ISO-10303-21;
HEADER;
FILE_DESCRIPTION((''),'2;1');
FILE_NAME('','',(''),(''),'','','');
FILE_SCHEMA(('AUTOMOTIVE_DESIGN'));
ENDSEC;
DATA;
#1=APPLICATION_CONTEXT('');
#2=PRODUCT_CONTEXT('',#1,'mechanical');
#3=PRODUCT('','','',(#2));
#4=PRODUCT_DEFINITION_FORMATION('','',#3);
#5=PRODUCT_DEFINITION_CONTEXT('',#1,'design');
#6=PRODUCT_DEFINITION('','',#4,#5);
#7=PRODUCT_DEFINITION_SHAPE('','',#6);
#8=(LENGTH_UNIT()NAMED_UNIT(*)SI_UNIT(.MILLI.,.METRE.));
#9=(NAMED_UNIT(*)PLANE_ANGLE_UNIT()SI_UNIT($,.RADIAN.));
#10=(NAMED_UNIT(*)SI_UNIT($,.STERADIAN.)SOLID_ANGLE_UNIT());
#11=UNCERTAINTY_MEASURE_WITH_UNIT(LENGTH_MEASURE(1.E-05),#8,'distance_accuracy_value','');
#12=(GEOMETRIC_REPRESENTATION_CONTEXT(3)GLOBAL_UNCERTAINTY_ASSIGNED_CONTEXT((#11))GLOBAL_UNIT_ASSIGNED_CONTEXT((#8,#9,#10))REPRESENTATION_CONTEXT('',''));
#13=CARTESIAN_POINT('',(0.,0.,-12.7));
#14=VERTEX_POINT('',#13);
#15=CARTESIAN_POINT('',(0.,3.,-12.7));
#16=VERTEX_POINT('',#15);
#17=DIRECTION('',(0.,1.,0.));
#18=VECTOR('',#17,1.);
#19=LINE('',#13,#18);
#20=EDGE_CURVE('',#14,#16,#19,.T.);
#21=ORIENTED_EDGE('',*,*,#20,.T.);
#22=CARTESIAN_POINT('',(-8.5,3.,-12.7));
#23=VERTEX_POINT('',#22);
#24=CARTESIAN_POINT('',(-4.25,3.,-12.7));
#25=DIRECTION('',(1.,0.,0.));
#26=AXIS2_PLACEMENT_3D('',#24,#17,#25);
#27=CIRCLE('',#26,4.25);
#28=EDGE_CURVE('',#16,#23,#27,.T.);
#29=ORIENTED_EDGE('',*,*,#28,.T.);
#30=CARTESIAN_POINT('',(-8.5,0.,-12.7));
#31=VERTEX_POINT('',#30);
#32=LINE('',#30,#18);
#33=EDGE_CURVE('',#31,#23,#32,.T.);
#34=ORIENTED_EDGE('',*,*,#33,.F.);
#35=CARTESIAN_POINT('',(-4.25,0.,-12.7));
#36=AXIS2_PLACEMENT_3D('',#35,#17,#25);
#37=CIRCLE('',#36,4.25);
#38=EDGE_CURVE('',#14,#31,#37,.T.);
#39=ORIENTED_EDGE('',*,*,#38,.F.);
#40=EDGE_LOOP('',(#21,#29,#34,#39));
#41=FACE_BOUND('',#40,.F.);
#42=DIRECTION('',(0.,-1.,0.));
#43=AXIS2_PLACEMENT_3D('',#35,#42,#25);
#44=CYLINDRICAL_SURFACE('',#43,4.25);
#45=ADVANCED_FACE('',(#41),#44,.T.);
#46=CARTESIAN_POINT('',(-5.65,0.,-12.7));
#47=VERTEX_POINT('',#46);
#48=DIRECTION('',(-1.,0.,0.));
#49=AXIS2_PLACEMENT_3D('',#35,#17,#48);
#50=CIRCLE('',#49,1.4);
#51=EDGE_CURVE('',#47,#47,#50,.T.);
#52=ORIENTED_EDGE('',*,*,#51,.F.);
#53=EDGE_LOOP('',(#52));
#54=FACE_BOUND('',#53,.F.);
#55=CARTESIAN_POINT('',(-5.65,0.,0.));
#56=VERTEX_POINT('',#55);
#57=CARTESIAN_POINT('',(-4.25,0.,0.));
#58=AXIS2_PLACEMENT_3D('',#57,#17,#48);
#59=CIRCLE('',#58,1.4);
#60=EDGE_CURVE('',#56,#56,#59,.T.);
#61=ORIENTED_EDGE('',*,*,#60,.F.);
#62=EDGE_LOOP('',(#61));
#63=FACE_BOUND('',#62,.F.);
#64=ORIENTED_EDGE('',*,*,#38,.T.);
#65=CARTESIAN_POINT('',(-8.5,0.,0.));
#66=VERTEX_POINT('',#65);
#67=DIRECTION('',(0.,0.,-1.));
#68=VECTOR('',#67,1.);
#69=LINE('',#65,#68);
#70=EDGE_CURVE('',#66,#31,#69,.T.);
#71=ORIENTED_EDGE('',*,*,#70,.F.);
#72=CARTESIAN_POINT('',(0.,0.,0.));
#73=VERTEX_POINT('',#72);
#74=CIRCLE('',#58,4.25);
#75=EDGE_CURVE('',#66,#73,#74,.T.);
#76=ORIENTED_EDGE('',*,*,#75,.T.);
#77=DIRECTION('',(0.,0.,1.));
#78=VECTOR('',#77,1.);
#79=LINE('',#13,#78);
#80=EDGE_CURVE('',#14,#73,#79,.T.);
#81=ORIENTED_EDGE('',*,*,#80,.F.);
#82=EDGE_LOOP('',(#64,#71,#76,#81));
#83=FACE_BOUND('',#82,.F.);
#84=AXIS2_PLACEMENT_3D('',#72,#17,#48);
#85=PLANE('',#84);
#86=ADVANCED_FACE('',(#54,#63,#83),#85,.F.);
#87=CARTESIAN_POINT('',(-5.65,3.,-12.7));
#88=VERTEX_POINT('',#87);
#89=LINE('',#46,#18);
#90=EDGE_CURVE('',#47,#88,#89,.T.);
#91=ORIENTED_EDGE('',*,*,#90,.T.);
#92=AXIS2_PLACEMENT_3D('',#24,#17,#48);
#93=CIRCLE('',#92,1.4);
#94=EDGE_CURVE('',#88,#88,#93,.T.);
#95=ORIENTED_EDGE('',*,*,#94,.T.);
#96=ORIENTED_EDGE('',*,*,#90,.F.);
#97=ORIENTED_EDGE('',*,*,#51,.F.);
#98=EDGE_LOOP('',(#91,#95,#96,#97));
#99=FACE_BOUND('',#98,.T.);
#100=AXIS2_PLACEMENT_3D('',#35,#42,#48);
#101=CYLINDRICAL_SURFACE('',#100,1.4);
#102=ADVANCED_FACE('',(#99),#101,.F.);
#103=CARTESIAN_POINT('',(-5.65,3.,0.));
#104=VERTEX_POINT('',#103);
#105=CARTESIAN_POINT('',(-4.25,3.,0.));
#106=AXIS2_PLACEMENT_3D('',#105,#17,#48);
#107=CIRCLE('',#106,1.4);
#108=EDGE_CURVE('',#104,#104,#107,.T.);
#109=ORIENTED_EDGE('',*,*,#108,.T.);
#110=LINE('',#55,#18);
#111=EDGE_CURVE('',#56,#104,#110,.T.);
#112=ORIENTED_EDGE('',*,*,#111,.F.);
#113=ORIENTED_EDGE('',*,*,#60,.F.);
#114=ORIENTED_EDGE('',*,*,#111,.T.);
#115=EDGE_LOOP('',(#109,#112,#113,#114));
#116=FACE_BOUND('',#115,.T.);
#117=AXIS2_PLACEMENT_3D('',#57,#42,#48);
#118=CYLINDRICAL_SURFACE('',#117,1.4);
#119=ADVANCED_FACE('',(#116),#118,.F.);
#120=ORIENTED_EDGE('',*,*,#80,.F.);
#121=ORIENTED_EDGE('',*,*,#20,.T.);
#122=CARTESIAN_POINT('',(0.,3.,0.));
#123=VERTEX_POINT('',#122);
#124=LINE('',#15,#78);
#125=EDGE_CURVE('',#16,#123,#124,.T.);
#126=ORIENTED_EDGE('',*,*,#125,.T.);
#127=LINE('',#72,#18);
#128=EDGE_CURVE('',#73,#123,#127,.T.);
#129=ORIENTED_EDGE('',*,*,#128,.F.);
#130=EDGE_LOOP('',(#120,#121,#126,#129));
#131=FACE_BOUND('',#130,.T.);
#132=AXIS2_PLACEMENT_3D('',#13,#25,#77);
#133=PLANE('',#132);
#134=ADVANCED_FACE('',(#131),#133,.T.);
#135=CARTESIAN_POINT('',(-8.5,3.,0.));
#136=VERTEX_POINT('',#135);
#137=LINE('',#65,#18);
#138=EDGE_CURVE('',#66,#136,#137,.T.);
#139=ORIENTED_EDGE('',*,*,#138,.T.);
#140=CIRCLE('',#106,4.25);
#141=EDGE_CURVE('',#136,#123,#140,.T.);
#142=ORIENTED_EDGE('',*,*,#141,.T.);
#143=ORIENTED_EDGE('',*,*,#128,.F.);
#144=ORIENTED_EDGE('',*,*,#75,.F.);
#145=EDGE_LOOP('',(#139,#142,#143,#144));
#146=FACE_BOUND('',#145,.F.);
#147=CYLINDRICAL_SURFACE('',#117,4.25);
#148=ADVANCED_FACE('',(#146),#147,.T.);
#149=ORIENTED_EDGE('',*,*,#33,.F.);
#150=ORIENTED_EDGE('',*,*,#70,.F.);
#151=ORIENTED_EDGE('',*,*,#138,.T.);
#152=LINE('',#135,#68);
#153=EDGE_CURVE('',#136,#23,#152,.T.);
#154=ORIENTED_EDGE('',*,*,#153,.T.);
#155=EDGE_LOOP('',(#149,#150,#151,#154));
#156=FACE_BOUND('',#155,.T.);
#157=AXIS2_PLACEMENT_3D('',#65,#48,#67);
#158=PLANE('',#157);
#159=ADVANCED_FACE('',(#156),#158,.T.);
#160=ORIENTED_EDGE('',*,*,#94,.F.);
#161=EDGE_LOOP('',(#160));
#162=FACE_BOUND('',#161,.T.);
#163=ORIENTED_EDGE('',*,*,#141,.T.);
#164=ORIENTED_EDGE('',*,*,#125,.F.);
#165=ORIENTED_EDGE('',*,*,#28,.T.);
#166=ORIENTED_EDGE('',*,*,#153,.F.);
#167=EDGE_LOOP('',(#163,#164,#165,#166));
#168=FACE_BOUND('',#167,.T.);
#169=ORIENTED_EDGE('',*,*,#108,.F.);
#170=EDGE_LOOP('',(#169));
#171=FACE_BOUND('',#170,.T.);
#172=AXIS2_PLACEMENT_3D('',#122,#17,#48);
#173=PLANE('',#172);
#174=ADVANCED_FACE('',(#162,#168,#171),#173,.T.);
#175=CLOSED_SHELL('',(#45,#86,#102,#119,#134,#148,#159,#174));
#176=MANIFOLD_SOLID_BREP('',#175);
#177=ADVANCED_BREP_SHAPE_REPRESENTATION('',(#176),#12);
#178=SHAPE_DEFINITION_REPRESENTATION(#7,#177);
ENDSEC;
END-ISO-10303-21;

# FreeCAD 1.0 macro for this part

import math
import FreeCAD as App
import Part
import Sketcher

V = App.Vector

doc = App.newDocument("Part")
body = doc.addObject("PartDesign::Body", "Body")

sketch1 = body.newObject("Sketcher::SketchObject", "Sketch")
sketch1.AttachmentSupport = (doc.getObject("XZ_Plane"), [""])
sketch1.MapMode = "FlatFace"
sketch1.addGeometry([
    Part.LineSegment(V(-8.5, -12.7, 0), V(-8.5, 0, 0)),
    Part.ArcOfCircle(Part.Circle(V(-4.25, 0, 0), V(0, 0, 1), 4.25), math.radians(0), math.radians(180)),
    Part.LineSegment(V(0, 0, 0), V(0, -12.7, 0)),
    Part.ArcOfCircle(Part.Circle(V(-4.25, -12.7, 0), V(0, 0, 1), 4.25), math.radians(180), math.radians(360)),
    Part.Circle(V(-4.25, -12.7, 0), V(0, 0, 1), 1.4),
    Part.Circle(V(-4.25, 0, 0), V(0, 0, 1), 1.4),
], False)
sketch1.addConstraint([
    Sketcher.Constraint("Tangent", 0, 2, 1, 2),
    Sketcher.Constraint("Tangent", 1, 1, 2, 1),
    Sketcher.Constraint("Tangent", 2, 2, 3, 2),
    Sketcher.Constraint("Tangent", 3, 1, 0, 1),
    Sketcher.Constraint("Vertical", 0),
    Sketcher.Constraint("Vertical", 2),
    Sketcher.Constraint("Coincident", 1, 1, -1, 1),
    Sketcher.Constraint("Coincident", 4, 3, 3, 3),
    Sketcher.Constraint("Coincident", 5, 3, 1, 3),
    Sketcher.Constraint("Equal", 4, 5),
    Sketcher.Constraint("Diameter", 4, 2.8),
    Sketcher.Constraint("Radius", 1, 4.25),
    Sketcher.Constraint("DistanceY", 0, 1, 0, 2, 12.7),
])
pad1 = body.newObject("PartDesign::Pad", "Pad")
pad1.Profile = sketch1
pad1.Length = 3
pad1.Reversed = True

doc.recompute()
